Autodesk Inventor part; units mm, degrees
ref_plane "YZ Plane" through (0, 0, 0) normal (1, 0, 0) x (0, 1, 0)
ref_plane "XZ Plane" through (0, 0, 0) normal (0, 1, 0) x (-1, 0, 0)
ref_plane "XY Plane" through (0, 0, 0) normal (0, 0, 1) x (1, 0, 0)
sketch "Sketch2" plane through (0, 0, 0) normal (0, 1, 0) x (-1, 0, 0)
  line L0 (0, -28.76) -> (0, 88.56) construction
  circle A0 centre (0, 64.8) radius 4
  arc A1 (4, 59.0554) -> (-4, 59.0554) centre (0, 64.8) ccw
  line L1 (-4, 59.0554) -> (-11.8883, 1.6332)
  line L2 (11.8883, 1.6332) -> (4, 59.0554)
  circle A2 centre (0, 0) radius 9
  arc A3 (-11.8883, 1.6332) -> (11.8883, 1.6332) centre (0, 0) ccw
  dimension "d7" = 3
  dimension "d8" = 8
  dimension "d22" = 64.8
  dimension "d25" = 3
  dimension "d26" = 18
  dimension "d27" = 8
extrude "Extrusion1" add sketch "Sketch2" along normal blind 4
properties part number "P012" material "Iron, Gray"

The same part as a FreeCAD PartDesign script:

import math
import FreeCAD as App
import Part
import Sketcher

V = App.Vector
Q = App.Units.Quantity

doc = App.newDocument("Part")
params = doc.addObject("Spreadsheet::Sheet", "Params")
for row, (alias, value) in enumerate([
    ("sketch1_diameter", "18 mm"),
    ("sketch1_diameter2", "8 mm"),
    ("sketch1_radius", "7 mm"),
    ("sketch1_radius2", "12 mm"),
    ("pad1_length", "4 mm"),
], start=1):
    params.set(f"A{row}", alias)
    params.set(f"B{row}", "=" + value)
    params.setAlias(f"B{row}", alias)

body = doc.addObject("PartDesign::Body", "Body")

sketch1 = doc.addObject("Sketcher::SketchObject", "Sketch")
body.addObject(sketch1)
sketch1.AttachmentSupport = (doc.XZ_Plane, [""])
sketch1.MapMode = "FlatFace"
sketch1.addGeometry([
    Part.LineSegment(V(-11.9, 1.6, 0), V(-4, 59.1, 0)),
    Part.ArcOfCircle(Part.Circle(V(0, 64.8, 0), V(0, 0, 1), 7), math.radians(-55), math.radians(235)),
    Part.LineSegment(V(4, 59.1, 0), V(11.9, 1.6, 0)),
    Part.ArcOfCircle(Part.Circle(V(0, 0, 0), V(0, 0, 1), 12), math.radians(172), math.radians(368)),
    Part.Circle(V(0, 0, 0), V(0, 0, 1), 9),
    Part.Circle(V(0, 64.8, 0), V(0, 0, 1), 4),
], False)
sketch1.addConstraint([
    Sketcher.Constraint("Coincident", 0, 2, 1, 2),
    Sketcher.Constraint("Coincident", 1, 1, 2, 1),
    Sketcher.Constraint("Tangent", 2, 2, 3, 2),
    Sketcher.Constraint("Tangent", 3, 1, 0, 1),
    Sketcher.Constraint("Coincident", 3, 3, -1, 1),
    Sketcher.Constraint("Coincident", 4, 3, -1, 1),
    Sketcher.Constraint("Coincident", 5, 3, 1, 3),
    Sketcher.Constraint("Symmetric", 0, 2, 1, 1, -2),
    Sketcher.Constraint("Diameter", 4, Q("18 mm")),
    Sketcher.Constraint("Diameter", 5, Q("8 mm")),
    Sketcher.Constraint("Radius", 1, Q("7 mm")),
    Sketcher.Constraint("Radius", 3, Q("12 mm")),
    Sketcher.Constraint("DistanceX", 0, 2, 1, 1, Q("8 mm")),
    Sketcher.Constraint("DistanceY", -1, 1, 1, 3, Q("64.8 mm")),
])
sketch1.setExpression("Constraints[8]", "Params.sketch1_diameter")
sketch1.setExpression("Constraints[9]", "Params.sketch1_diameter2")
sketch1.setExpression("Constraints[10]", "Params.sketch1_radius")
sketch1.setExpression("Constraints[11]", "Params.sketch1_radius2")
pad1 = doc.addObject("PartDesign::Pad", "Pad")
body.addObject(pad1)
pad1.Profile = sketch1
pad1.setExpression("Length", "Params.pad1_length")
pad1.Reversed = True

doc.recompute()
